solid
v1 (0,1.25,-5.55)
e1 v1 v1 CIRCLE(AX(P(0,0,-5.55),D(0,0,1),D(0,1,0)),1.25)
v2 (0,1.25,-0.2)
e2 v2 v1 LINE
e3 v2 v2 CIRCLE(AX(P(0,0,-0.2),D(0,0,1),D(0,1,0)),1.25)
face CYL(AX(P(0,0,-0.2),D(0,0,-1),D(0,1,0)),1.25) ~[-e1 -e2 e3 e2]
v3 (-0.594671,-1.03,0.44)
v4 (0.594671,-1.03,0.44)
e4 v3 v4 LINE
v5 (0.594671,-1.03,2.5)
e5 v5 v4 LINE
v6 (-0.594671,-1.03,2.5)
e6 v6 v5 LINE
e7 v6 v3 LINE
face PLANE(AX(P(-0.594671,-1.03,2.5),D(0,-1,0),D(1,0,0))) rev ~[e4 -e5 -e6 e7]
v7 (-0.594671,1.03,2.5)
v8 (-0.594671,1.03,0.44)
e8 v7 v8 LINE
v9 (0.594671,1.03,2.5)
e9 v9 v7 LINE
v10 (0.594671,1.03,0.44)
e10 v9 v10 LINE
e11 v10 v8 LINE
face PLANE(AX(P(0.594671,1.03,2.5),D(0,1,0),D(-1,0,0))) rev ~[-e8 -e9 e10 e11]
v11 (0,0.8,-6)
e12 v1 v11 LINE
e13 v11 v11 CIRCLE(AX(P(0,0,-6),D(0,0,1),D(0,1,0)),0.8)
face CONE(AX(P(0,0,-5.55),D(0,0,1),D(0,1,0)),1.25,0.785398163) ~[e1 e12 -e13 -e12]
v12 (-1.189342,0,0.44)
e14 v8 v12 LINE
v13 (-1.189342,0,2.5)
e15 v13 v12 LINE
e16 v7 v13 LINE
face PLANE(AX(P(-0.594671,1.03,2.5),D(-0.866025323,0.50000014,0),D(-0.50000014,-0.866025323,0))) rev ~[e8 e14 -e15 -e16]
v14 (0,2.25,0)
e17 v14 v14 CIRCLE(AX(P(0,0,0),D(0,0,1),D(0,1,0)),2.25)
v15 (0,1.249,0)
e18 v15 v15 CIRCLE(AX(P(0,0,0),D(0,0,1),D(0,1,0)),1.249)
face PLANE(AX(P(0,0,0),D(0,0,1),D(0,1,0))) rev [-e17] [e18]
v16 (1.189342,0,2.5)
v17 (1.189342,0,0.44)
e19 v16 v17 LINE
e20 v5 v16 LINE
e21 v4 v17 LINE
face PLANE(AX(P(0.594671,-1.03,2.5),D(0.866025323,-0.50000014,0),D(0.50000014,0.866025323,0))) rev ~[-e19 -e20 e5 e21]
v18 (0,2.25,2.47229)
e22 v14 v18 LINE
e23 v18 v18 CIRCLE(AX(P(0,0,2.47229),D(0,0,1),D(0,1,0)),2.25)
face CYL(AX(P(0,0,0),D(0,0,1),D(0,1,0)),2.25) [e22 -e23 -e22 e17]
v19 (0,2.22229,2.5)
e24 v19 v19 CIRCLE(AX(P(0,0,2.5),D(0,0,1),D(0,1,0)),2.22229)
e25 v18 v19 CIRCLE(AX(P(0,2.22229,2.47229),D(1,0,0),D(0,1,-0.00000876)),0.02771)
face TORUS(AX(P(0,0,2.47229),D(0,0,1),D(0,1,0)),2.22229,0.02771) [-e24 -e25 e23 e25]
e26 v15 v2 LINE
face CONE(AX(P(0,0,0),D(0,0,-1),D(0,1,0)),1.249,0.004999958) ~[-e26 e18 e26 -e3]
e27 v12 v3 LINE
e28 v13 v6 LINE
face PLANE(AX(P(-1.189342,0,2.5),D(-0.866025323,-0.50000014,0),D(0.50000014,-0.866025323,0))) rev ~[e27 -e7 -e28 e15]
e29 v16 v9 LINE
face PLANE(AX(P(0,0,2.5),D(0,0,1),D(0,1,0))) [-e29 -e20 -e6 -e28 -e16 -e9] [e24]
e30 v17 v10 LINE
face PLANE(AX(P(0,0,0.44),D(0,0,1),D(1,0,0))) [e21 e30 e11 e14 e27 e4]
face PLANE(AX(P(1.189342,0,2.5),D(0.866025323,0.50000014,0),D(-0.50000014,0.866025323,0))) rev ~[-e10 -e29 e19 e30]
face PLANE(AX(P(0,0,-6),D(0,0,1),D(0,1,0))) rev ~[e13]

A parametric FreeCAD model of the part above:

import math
import FreeCAD as App
import Part
import Sketcher
from FreeCAD import Vector
Q = App.Units.Quantity


def add_polygon(sketch, points):
    """Adds a closed chain of lines whose ends are joined by coincident constraints."""
    first, n = sketch.GeometryCount, len(points)
    for a, b in zip(points, points[1:] + points[:1]):
        sketch.addGeometry(Part.LineSegment(App.Vector(*a, 0), App.Vector(*b, 0)), False)
    for i in range(n):
        sketch.addConstraint(Sketcher.Constraint("Coincident", first + i, 2, first + (i + 1) % n, 1))

doc = App.newDocument("Part")
params = doc.addObject("Spreadsheet::Sheet", "Params")
for row, (alias, value) in enumerate([
    ("sketch1_width", "0.8 mm"),
    ("sketch1_height", "8.5 mm"),
    ("sketch1_height2", "5.35 mm"),
    ("revolution_angle", "360 deg"),
    ("pocket1_length", "2.06 mm"),
], start=1):
    params.set(f"A{row}", alias)
    params.set(f"B{row}", "=" + value)
    params.setAlias(f"B{row}", alias)

body = doc.addObject("PartDesign::Body", "Body")

# Sketch on YZ plane
sketch1 = body.newObject("Sketcher::SketchObject", "Sketch")
sketch1.AttachmentSupport = (doc.getObject("YZ_Plane"), [""])
sketch1.MapMode = "FlatFace"
sketch1.addGeometry([
    Part.LineSegment(Vector(1.249, 0, 0), Vector(2.25, 0, 0)),  # 0
    Part.LineSegment(Vector(2.25, 0, 0), Vector(2.25, 2.47229, 0)),  # 1
    Part.ArcOfCircle(Part.Circle(Vector(2.22229, 2.47229, 0), Vector(0, 0, 1), 0.02771), math.radians(-0.000502), math.radians(90.000502)),  # 2
    Part.LineSegment(Vector(2.22229, 2.5, 0), Vector(0, 2.5, 0)),  # 3
    Part.LineSegment(Vector(0, 2.5, 0), Vector(0, -6, 0)),  # 4
    Part.LineSegment(Vector(0, -6, 0), Vector(0.8, -6, 0)),  # 5
    Part.LineSegment(Vector(0.8, -6, 0), Vector(1.25, -5.55, 0)),  # 6
    Part.LineSegment(Vector(1.25, -5.55, 0), Vector(1.25, -0.2, 0)),  # 7
    Part.LineSegment(Vector(1.25, -0.2, 0), Vector(1.249, 0, 0)),  # 8
], False)
sketch1.addConstraint([
    Sketcher.Constraint("Coincident", 0, 2, 1, 1),
    Sketcher.Constraint("Coincident", 1, 2, 2, 1),
    Sketcher.Constraint("Coincident", 2, 2, 3, 1),
    Sketcher.Constraint("Coincident", 3, 2, 4, 1),
    Sketcher.Constraint("Coincident", 4, 2, 5, 1),
    Sketcher.Constraint("Coincident", 5, 2, 6, 1),
    Sketcher.Constraint("Coincident", 6, 2, 7, 1),
    Sketcher.Constraint("Coincident", 7, 2, 8, 1),
    Sketcher.Constraint("Coincident", 8, 2, 0, 1),
    Sketcher.Constraint("Horizontal", 0),
    Sketcher.Constraint("Vertical", 1),
    Sketcher.Constraint("Horizontal", 3),
    Sketcher.Constraint("Vertical", 4),
    Sketcher.Constraint("Horizontal", 5),
    Sketcher.Constraint("Vertical", 7),
    Sketcher.Constraint("PointOnObject", 0, 2, -1),
    Sketcher.Constraint("PointOnObject", 3, 2, -2),
    Sketcher.Constraint("Horizontal", 2, 3, 1, 2),
    Sketcher.Constraint("Angle", 6, Q("45 deg")),
    Sketcher.Constraint("DistanceX", 5, 1, 5, 2, Q("0.8 mm")),
    Sketcher.Constraint("DistanceY", 4, 2, 4, 1, Q("8.5 mm")),
    Sketcher.Constraint("DistanceY", 4, 2, -1, 1, Q("6 mm")),
    Sketcher.Constraint("DistanceX", 6, 2, 0, 2, Q("1 mm")),
    Sketcher.Constraint("DistanceY", 7, 1, 7, 2, Q("5.35 mm")),
    Sketcher.Constraint("DistanceY", 7, 2, -1, 1, Q("0.2 mm")),
    Sketcher.Constraint("DistanceX", 0, 1, 0, 2, Q("1.001 mm")),
    Sketcher.Constraint("Radius", 2, Q("0.02771 mm")),
    Sketcher.Constraint("DistanceX", 3, 2, 3, 1, Q("2.22229 mm")),
])
sketch1.setExpression("Constraints[19]", "Params.sketch1_width")
sketch1.setExpression("Constraints[20]", "Params.sketch1_height")
sketch1.setExpression("Constraints[23]", "Params.sketch1_height2")
revolution = body.newObject("PartDesign::Revolution", "Revolution")
revolution.Profile = sketch1
revolution.ReferenceAxis = (sketch1, ["V_Axis"])
revolution.setExpression("Angle", "Params.revolution_angle")

# Sketch on XY plane
sketch2 = body.newObject("Sketcher::SketchObject", "Sketch001")
sketch2.AttachmentSupport = (doc.getObject("XY_Plane"), [""])
sketch2.MapMode = "FlatFace"
sketch2.AttachmentOffset = App.Placement(Vector(0, 0, 2.5), App.Rotation())
add_polygon(sketch2, [(1.189342, 0), (0.594671, 1.03), (-0.594671, 1.03), (-1.189342, 0), (-0.594671, -1.03), (0.594671, -1.03)])  # lines 0-5
sketch2.addConstraint([
    Sketcher.Constraint("Horizontal", 1),
    Sketcher.Constraint("Horizontal", 4),
    Sketcher.Constraint("Symmetric", 0, 2, 3, 2, -1, 1),
    Sketcher.Constraint("Symmetric", 2, 2, 5, 2, -1, 1),
    Sketcher.Constraint("PointOnObject", 2, 2, -1),
    Sketcher.Constraint("Parallel", 2, 5),
    Sketcher.Constraint("Vertical", 1, 2, 3, 2),
    Sketcher.Constraint("Angle", 0, Q("120.000009 deg")),
    Sketcher.Constraint("DistanceY", -1, 1, 0, 2, Q("1.03 mm")),
    Sketcher.Constraint("DistanceX", 1, 2, 1, 1, Q("1.189342 mm")),
])
pocket1 = body.newObject("PartDesign::Pocket", "Pocket")
pocket1.Profile = sketch2
pocket1.setExpression("Length", "Params.pocket1_length")

doc.recompute()
